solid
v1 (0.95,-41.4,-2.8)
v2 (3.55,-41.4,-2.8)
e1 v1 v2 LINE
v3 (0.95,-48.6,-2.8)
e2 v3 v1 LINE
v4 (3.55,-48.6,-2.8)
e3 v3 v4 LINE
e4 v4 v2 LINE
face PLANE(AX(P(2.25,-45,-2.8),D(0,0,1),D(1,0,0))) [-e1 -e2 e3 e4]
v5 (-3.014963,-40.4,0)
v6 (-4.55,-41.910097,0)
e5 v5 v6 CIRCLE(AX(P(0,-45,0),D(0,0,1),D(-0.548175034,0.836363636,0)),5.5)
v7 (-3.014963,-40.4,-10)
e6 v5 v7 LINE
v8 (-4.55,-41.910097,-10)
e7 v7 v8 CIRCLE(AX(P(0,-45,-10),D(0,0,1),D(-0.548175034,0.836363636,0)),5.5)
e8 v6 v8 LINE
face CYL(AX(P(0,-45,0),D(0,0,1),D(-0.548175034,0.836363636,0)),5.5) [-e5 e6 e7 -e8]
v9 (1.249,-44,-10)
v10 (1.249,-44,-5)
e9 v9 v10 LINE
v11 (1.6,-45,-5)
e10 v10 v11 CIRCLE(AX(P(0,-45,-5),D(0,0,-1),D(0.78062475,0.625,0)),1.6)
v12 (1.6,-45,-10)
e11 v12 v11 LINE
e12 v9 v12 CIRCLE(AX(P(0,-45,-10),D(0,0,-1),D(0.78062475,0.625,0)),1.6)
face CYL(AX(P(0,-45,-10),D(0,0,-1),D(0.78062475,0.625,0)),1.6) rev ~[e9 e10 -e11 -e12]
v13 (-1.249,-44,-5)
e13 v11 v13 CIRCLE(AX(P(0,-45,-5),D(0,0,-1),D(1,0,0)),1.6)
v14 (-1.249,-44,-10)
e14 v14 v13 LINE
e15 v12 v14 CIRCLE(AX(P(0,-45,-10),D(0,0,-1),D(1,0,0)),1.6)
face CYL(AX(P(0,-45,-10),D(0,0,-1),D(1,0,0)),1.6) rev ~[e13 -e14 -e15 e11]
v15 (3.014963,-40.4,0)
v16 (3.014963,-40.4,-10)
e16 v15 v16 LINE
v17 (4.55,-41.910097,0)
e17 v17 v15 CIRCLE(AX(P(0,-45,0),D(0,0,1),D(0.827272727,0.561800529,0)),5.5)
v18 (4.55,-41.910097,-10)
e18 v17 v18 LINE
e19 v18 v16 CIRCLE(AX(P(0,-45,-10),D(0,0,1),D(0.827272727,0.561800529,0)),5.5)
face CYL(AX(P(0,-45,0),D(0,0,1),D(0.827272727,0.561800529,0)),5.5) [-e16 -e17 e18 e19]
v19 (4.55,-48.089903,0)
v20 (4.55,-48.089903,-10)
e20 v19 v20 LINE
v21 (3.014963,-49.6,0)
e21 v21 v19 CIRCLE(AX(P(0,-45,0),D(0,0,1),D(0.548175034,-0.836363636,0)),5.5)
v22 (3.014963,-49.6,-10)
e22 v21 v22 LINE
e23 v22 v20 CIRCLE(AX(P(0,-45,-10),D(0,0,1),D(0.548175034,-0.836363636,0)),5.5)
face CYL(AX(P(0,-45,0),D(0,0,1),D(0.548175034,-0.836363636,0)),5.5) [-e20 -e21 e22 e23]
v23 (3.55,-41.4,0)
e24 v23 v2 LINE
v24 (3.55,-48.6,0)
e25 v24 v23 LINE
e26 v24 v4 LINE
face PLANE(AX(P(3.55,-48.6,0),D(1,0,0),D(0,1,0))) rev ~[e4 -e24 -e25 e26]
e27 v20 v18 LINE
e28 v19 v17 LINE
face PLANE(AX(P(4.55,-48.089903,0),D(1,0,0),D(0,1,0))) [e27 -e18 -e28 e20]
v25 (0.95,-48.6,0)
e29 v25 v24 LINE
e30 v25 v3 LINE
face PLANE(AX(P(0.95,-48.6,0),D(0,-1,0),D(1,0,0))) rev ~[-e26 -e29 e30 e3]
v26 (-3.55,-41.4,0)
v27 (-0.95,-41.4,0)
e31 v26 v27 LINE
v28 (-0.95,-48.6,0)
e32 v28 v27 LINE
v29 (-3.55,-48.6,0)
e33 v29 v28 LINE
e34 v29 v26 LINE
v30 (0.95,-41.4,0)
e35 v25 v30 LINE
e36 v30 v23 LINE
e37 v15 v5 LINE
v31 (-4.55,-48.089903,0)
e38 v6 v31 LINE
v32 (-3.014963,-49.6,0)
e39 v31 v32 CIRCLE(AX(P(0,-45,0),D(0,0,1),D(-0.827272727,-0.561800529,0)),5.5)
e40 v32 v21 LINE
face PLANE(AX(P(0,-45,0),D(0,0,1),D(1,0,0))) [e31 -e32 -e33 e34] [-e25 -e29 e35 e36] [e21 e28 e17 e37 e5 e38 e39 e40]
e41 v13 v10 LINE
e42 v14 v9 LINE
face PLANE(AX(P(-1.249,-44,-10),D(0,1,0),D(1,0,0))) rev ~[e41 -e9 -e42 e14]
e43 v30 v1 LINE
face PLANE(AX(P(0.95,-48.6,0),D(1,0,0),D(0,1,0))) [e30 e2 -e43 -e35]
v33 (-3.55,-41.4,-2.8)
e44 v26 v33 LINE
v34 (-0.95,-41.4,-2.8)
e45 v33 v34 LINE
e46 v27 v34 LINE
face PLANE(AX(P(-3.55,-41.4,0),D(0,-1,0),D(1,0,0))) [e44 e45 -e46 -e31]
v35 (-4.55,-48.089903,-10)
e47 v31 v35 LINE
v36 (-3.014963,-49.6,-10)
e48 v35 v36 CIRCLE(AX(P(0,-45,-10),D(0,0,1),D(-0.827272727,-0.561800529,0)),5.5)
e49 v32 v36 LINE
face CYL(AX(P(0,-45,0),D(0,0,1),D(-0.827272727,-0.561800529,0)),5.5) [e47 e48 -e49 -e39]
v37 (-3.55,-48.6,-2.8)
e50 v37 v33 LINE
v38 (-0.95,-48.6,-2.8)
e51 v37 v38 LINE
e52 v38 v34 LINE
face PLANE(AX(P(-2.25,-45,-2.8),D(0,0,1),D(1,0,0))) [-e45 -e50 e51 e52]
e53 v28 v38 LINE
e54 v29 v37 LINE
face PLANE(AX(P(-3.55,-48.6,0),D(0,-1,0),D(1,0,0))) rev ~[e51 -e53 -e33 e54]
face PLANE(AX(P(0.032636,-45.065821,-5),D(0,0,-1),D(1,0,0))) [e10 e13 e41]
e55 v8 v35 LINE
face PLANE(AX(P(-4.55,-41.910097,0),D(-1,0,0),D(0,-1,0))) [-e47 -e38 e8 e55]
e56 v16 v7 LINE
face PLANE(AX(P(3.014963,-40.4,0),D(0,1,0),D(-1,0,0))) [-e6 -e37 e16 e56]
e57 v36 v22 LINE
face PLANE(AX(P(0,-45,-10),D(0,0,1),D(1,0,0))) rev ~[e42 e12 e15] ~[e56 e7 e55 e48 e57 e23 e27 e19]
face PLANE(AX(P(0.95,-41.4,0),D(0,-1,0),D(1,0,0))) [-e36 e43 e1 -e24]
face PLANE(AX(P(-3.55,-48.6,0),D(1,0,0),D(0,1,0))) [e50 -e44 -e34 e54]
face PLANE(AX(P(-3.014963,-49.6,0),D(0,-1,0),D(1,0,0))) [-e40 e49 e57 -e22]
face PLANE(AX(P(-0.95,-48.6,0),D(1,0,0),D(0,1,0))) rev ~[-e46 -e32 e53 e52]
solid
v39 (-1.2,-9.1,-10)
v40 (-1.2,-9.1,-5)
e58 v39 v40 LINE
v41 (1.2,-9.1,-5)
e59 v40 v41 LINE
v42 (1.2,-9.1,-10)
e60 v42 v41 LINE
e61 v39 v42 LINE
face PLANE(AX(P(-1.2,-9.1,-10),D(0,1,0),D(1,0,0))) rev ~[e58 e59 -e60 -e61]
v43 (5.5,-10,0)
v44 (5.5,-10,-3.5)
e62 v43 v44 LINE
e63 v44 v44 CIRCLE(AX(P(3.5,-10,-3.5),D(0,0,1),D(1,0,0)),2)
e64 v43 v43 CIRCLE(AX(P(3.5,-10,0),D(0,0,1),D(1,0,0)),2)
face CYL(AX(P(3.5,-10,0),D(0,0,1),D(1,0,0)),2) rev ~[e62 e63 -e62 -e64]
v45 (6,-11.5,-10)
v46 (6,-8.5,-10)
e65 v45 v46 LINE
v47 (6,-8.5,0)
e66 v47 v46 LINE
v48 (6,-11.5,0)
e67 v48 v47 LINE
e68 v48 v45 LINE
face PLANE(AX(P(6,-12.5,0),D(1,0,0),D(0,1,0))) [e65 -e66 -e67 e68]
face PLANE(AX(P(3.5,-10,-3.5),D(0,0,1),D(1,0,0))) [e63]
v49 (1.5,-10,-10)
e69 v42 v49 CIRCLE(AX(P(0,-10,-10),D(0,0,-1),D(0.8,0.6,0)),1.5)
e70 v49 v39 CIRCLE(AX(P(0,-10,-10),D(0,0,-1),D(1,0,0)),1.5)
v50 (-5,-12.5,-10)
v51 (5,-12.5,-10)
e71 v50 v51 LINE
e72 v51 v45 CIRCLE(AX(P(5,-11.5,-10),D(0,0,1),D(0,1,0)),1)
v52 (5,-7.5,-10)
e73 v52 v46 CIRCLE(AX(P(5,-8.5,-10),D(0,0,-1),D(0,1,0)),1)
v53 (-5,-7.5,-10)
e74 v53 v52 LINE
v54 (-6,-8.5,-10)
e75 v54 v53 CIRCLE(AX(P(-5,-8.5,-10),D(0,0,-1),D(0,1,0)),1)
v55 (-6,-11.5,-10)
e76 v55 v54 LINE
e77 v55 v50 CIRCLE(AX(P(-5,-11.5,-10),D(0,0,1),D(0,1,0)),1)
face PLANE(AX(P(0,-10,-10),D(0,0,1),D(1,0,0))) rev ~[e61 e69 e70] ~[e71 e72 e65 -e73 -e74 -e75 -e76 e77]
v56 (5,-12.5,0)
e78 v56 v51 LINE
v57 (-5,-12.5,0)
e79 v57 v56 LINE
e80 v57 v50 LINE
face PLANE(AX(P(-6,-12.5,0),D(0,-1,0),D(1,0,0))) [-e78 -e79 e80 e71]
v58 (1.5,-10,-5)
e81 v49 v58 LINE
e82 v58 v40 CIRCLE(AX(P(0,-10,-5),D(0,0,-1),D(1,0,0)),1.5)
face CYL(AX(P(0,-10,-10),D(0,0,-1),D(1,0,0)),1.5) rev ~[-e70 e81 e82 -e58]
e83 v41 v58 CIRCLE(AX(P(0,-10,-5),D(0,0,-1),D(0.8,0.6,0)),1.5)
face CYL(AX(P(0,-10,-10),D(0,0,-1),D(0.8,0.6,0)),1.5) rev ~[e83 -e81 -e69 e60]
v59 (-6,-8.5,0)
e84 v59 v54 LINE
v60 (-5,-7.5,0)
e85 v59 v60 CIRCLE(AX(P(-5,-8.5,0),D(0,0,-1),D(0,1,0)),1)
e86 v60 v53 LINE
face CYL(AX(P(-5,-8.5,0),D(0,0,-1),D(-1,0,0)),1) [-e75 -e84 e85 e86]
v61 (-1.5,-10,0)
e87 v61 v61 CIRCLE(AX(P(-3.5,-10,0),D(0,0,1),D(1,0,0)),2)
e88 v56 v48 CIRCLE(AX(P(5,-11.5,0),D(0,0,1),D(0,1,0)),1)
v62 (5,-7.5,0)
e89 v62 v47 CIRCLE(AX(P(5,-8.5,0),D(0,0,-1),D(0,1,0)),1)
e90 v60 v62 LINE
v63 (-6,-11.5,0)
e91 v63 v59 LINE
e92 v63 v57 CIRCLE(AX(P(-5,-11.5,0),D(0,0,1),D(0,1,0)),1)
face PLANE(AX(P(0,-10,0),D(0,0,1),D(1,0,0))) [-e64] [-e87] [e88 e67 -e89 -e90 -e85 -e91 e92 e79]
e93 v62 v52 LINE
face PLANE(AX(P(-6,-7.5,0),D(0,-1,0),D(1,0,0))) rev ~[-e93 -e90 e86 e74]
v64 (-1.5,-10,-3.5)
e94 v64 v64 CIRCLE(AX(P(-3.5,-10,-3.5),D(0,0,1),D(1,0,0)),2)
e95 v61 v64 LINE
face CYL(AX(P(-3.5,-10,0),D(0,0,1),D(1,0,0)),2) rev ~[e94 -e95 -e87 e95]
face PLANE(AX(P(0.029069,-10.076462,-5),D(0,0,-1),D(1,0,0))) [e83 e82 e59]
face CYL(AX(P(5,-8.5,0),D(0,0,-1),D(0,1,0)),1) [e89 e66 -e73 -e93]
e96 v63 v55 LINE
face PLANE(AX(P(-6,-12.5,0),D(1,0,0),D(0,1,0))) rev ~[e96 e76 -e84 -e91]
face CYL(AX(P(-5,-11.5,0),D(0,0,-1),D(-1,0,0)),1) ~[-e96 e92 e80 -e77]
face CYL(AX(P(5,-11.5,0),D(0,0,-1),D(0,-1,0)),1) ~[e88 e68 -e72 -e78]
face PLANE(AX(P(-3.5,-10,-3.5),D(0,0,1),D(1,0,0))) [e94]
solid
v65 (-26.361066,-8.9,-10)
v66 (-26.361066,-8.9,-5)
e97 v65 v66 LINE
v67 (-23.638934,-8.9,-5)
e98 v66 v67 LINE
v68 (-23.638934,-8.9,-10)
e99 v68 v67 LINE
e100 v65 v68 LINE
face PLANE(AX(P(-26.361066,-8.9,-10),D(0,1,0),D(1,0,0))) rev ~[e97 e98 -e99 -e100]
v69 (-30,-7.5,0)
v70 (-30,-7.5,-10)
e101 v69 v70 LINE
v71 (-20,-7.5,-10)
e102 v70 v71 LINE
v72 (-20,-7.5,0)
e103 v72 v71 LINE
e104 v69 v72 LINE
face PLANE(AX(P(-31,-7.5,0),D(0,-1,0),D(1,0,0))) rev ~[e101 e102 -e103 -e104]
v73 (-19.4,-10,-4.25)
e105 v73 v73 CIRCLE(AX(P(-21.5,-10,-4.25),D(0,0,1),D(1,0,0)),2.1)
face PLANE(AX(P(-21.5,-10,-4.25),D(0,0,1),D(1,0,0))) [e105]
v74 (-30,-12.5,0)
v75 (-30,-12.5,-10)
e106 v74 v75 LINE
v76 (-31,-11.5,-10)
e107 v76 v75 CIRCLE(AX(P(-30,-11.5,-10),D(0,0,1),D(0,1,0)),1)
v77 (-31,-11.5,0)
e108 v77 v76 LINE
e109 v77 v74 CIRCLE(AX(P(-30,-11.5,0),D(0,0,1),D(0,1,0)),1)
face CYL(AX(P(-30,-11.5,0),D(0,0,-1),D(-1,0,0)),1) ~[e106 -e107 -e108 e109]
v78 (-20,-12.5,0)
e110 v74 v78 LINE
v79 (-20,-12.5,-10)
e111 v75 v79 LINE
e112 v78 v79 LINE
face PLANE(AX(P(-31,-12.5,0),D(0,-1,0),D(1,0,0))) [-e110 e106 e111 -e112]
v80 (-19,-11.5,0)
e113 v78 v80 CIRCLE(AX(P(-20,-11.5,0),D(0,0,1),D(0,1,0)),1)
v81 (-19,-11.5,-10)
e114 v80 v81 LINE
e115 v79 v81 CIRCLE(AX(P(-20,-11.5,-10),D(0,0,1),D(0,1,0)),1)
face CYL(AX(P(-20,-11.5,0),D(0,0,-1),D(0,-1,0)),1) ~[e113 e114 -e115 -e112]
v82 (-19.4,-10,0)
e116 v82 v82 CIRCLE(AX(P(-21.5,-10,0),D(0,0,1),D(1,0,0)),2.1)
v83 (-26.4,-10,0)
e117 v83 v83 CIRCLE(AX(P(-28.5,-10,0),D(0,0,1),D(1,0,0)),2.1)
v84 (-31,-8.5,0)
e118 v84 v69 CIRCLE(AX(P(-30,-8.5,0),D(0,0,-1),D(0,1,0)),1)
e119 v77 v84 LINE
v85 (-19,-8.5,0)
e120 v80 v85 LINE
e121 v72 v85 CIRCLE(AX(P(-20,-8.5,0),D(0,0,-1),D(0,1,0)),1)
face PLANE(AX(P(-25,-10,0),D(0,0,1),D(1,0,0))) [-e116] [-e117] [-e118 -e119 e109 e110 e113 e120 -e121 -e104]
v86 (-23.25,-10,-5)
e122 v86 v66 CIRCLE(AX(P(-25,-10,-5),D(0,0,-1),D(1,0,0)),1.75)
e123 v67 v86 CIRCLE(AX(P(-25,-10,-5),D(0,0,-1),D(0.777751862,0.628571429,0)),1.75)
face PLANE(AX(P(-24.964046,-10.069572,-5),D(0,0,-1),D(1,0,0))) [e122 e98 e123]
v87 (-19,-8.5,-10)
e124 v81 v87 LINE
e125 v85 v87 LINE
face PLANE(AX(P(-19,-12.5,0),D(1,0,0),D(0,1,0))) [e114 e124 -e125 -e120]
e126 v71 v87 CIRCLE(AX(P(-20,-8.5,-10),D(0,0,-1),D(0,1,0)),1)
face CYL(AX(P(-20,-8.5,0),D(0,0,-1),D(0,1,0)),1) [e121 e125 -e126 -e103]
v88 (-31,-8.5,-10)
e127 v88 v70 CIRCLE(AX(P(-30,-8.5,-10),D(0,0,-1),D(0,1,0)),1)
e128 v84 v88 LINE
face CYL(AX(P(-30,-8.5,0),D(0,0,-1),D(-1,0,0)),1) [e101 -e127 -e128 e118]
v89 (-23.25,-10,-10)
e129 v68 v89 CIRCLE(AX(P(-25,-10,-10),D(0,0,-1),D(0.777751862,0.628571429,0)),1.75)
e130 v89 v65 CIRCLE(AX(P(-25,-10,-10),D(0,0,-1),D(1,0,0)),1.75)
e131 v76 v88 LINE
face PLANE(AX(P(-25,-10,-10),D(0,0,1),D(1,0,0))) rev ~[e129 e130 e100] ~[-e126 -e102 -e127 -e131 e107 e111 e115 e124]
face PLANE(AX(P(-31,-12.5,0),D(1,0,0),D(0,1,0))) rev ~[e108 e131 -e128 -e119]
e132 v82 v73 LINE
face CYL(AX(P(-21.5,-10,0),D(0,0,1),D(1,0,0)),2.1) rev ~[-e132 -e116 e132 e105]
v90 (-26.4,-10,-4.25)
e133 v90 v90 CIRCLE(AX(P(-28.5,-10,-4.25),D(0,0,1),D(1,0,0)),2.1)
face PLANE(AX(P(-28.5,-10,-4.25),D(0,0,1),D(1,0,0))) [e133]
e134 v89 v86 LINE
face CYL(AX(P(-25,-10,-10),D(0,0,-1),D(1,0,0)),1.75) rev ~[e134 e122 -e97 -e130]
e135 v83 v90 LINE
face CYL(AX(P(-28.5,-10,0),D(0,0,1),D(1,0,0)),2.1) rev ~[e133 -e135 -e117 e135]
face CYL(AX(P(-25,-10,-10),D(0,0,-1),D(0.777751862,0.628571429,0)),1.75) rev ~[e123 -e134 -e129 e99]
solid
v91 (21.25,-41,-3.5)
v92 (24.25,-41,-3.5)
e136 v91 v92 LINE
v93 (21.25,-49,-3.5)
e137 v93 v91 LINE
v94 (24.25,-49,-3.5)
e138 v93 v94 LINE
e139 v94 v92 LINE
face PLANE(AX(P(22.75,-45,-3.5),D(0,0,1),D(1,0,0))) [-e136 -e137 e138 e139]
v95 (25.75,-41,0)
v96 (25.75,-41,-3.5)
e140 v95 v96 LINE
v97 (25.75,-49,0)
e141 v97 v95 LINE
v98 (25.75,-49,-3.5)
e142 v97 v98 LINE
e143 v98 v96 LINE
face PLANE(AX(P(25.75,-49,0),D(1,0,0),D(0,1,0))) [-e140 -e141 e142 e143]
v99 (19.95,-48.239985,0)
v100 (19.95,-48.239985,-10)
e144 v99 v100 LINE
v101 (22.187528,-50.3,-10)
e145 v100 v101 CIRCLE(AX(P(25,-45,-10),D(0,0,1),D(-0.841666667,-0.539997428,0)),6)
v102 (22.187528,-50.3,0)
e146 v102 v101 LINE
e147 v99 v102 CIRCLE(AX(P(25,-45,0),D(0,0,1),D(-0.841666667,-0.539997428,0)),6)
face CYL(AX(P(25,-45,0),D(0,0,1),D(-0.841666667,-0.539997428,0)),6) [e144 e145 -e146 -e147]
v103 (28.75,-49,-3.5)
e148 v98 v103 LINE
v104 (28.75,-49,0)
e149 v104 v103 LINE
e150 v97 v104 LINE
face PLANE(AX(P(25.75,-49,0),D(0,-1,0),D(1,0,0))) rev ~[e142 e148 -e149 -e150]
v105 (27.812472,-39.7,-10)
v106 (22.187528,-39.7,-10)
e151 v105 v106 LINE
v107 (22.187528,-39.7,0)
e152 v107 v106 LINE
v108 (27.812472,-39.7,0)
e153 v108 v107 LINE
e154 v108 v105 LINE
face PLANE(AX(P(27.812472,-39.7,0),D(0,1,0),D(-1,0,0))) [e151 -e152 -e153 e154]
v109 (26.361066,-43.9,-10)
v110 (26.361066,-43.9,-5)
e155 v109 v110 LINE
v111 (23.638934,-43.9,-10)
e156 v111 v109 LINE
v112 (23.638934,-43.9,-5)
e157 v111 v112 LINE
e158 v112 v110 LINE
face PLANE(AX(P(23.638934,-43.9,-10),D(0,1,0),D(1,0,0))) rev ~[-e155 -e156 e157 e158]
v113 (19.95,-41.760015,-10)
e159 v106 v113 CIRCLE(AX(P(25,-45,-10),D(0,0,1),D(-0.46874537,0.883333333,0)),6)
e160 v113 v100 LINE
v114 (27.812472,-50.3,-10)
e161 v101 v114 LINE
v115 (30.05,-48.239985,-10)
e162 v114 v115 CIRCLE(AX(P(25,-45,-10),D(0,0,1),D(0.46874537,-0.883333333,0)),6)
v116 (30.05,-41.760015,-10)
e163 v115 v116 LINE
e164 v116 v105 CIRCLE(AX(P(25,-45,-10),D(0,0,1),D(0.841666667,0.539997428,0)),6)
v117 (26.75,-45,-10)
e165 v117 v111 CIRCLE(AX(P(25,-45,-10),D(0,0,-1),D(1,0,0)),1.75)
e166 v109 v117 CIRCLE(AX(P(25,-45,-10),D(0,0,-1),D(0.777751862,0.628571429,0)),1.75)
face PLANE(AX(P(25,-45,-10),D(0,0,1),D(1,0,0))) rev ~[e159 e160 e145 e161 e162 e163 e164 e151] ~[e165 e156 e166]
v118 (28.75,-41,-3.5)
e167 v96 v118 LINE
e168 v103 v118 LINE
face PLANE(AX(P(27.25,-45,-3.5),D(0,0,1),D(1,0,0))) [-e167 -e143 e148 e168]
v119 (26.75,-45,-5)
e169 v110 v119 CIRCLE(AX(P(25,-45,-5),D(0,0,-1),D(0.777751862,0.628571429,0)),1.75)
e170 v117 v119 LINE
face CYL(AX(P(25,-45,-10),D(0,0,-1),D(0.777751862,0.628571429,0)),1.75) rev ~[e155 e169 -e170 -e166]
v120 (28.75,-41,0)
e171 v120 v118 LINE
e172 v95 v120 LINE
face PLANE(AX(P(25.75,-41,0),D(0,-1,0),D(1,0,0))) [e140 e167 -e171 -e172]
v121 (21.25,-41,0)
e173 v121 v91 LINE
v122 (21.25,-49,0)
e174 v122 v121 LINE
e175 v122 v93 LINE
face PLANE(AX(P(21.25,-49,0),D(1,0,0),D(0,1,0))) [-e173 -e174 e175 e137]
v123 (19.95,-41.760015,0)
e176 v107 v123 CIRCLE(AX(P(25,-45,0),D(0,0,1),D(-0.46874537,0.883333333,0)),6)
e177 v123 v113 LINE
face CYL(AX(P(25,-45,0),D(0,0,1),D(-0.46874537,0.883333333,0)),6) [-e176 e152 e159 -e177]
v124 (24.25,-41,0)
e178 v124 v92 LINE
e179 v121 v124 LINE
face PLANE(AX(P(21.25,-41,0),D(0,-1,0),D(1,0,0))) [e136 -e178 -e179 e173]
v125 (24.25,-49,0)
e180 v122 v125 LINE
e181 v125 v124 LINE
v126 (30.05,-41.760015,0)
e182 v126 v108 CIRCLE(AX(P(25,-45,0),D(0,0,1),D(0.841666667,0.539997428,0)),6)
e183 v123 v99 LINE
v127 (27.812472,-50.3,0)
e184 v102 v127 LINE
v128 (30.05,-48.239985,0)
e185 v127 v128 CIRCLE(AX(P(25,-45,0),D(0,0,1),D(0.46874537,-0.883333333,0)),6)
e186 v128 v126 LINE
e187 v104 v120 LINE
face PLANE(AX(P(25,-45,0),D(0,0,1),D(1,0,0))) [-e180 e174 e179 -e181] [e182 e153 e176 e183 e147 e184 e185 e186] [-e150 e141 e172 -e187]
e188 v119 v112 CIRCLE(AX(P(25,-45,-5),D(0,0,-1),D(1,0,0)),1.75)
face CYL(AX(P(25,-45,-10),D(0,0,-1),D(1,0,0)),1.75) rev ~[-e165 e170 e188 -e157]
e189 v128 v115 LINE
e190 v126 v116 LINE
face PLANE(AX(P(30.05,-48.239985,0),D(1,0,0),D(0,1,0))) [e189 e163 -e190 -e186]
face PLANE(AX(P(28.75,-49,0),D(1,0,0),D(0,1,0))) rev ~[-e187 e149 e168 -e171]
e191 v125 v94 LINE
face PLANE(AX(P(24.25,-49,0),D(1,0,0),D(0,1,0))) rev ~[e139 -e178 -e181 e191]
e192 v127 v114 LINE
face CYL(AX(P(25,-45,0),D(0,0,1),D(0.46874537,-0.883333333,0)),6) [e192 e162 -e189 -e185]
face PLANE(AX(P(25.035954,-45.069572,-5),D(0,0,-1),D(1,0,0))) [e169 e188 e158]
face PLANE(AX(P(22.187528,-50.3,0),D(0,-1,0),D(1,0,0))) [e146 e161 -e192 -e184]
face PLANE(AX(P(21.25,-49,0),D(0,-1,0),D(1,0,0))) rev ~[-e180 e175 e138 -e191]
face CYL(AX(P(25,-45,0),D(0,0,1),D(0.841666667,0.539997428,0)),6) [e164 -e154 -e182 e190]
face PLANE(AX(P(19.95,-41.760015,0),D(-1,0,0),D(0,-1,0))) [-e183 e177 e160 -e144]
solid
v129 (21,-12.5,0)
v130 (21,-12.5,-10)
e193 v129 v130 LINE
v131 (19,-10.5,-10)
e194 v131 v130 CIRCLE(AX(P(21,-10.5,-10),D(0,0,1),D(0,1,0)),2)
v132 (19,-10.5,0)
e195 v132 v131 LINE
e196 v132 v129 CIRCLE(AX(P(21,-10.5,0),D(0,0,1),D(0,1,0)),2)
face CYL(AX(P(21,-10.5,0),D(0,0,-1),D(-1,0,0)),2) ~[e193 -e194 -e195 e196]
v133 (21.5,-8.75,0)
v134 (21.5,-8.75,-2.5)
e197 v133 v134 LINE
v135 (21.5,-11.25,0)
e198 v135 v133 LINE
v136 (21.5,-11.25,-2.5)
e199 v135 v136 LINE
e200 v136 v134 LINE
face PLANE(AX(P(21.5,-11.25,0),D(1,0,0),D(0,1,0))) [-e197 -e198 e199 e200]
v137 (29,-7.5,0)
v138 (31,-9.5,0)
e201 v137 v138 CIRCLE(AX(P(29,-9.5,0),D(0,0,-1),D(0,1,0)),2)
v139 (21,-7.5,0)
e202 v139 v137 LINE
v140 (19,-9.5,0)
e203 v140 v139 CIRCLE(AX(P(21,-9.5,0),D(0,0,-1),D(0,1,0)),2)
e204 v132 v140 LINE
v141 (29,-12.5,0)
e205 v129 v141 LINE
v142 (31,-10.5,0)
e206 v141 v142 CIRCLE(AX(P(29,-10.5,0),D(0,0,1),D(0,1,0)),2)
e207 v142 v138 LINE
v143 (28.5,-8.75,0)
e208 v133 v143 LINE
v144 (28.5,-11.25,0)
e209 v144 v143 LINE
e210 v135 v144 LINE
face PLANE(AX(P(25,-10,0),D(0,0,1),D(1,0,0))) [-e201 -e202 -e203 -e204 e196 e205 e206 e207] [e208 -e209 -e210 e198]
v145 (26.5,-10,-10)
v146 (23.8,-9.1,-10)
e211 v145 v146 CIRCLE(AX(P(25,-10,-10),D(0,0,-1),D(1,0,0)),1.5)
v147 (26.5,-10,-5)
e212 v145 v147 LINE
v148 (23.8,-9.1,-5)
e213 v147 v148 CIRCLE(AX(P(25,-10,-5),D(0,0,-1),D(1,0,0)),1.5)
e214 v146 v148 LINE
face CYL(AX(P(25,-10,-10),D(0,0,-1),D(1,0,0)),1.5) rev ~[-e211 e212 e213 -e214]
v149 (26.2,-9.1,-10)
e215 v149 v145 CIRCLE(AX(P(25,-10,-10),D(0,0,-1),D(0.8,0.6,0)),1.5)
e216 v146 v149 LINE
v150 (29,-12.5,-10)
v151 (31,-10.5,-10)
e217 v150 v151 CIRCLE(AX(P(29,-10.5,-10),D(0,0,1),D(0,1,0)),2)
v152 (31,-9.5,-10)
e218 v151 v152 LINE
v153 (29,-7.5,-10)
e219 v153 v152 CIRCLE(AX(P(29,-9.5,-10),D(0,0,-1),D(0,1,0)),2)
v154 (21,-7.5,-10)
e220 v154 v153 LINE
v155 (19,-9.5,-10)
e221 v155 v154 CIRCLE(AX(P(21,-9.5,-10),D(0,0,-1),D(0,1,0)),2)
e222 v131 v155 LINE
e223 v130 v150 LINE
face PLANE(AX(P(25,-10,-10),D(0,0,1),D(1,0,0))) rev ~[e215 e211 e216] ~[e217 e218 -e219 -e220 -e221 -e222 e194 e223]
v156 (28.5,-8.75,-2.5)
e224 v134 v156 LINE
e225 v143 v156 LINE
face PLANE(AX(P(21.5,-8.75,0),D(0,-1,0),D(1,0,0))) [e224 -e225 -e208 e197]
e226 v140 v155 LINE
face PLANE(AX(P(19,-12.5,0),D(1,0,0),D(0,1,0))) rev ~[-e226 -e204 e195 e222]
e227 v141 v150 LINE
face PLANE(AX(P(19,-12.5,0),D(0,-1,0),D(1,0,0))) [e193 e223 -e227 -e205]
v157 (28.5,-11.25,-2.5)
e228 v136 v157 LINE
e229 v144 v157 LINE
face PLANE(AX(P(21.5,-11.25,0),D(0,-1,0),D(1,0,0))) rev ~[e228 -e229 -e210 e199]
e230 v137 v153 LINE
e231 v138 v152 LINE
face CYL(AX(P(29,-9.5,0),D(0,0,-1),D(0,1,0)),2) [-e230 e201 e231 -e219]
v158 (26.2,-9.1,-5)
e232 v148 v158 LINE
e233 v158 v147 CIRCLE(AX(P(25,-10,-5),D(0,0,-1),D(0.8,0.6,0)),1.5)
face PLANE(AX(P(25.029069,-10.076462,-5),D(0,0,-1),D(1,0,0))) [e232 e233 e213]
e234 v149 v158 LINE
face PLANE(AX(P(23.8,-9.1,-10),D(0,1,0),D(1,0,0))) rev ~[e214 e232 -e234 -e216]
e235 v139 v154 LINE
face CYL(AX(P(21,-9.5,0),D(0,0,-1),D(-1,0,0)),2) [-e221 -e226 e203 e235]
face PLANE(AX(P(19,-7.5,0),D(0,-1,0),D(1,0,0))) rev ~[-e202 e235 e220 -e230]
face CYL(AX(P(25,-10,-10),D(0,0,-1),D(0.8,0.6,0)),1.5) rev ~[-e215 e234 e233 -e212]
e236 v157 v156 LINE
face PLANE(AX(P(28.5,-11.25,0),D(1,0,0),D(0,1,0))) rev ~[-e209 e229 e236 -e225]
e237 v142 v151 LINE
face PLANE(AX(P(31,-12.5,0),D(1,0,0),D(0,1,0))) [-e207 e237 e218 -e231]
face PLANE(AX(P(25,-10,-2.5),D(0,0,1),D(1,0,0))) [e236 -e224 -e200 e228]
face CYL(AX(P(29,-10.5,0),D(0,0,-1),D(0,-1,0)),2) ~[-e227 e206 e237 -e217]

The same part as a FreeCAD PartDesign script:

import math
import FreeCAD as App
import Part
import Sketcher
from FreeCAD import Vector
Q = App.Units.Quantity


def edges_at(feature, points):
    """Names of the edges that pass closest to the given points."""
    edges = feature.Shape.Edges
    near = lambda p: min(range(len(edges)), key=lambda i: edges[i].distToShape(Part.Vertex(*p))[0])
    return sorted({f"Edge{near(p) + 1}" for p in points})

doc = App.newDocument("Part")
body = doc.addObject("PartDesign::Body", "Body")

sketch1 = body.newObject("Sketcher::SketchObject", "Sketch")
sketch1.AttachmentSupport = (doc.getObject("XY_Plane"), [""])
sketch1.MapMode = "FlatFace"
sketch1.addGeometry([
    Part.LineSegment(Vector(-6, -8, 0), Vector(-6, -12, 0)),
    Part.LineSegment(Vector(-6, -12, 0), Vector(6, -12, 0)),
    Part.LineSegment(Vector(6, -12, 0), Vector(6, -8, 0)),
    Part.LineSegment(Vector(6, -8, 0), Vector(-6, -8, 0)),
], False)
sketch1.addConstraint([
    Sketcher.Constraint("Coincident", 0, 2, 1, 1),
    Sketcher.Constraint("Coincident", 1, 2, 2, 1),
    Sketcher.Constraint("Coincident", 2, 2, 3, 1),
    Sketcher.Constraint("Coincident", 3, 2, 0, 1),
    Sketcher.Constraint("Vertical", 0),
    Sketcher.Constraint("Horizontal", 1),
    Sketcher.Constraint("Vertical", 2),
    Sketcher.Constraint("Horizontal", 3),
    Sketcher.Constraint("DistanceX", 1, 1, 1, 2, Q("12 mm")),
    Sketcher.Constraint("DistanceY", 0, 2, 0, 1, Q("5 mm")),
    Sketcher.Constraint("DistanceX", 0, 2, -1, 1, Q("6 mm")),
    Sketcher.Constraint("DistanceY", 0, 2, -1, 1, Q("12.5 mm")),
])
pad1 = body.newObject("PartDesign::Pad", "Pad")
pad1.Profile = sketch1
pad1.Length = 10
pad1.Reversed = True

sketch2 = body.newObject("Sketcher::SketchObject", "Sketch001")
sketch2.AttachmentSupport = (doc.getObject("XY_Plane"), [""])
sketch2.MapMode = "FlatFace"
sketch2.addGeometry([
    Part.Circle(Vector(-3.5, -10, 0), Vector(0, 0, 1), 2),
    Part.Circle(Vector(3.5, -10, 0), Vector(0, 0, 1), 2),
], False)
sketch2.addConstraint([
    Sketcher.Constraint("Equal", 0, 1),
    Sketcher.Constraint("Symmetric", 0, 3, 1, 3, -2),
    Sketcher.Constraint("Diameter", 0, Q("4 mm")),
    Sketcher.Constraint("DistanceY", 0, 3, -1, 1, Q("10 mm")),
    Sketcher.Constraint("DistanceX", 0, 3, 1, 3, Q("7 mm")),
])
pocket1 = body.newObject("PartDesign::Pocket", "Pocket")
pocket1.Profile = sketch2
pocket1.Length = 3.5
doc.recompute()

fillet = body.newObject("PartDesign::Fillet", "Fillet")
fillet.Base = (pocket1, edges_at(pocket1, [
    (6, -12.5, -5),
    (6, -7.5, -5),
    (-6, -12.5, -5),
    (-6, -7.5, -5),
]))
fillet.Radius = 1

sketch3 = body.newObject("Sketcher::SketchObject", "Sketch002")
sketch3.AttachmentSupport = (doc.getObject("XY_Plane"), [""])
sketch3.MapMode = "FlatFace"
sketch3.AttachmentOffset = App.Placement(Vector(0, 0, -10), App.Rotation())
sketch3.addGeometry([
    Part.ArcOfCircle(Part.Circle(Vector(0, -10, 0), Vector(0, 0, 1), 1.5), math.radians(0), math.radians(37)),
    Part.ArcOfCircle(Part.Circle(Vector(0, -10, 0), Vector(0, 0, 1), 1.5), math.radians(143), math.radians(360)),
    Part.LineSegment(Vector(-1.2, -9.1, 0), Vector(1.2, -9.1, 0)),
], False)
sketch3.addConstraint([
    Sketcher.Constraint("Tangent", 0, 1, 1, 2),
    Sketcher.Constraint("Coincident", 1, 1, 2, 1),
    Sketcher.Constraint("Coincident", 2, 2, 0, 2),
    Sketcher.Constraint("Horizontal", 2),
    Sketcher.Constraint("Equal", 0, 1),
    Sketcher.Constraint("PointOnObject", 0, 3, -2),
    Sketcher.Constraint("Horizontal", 1, 3, 0, 1),
    Sketcher.Constraint("Radius", 0, Q("1.5 mm")),
    Sketcher.Constraint("DistanceX", 2, 1, 2, 2, Q("2.4 mm")),
    Sketcher.Constraint("DistanceY", 0, 3, -1, 1, Q("10 mm")),
])
pocket2 = body.newObject("PartDesign::Pocket", "Pocket001")
pocket2.Profile = sketch3
pocket2.Length = 5
pocket2.Reversed = True
body2 = doc.addObject("PartDesign::Body", "Body001")

sketch4 = body2.newObject("Sketcher::SketchObject", "Sketch003")
sketch4.AttachmentSupport = (doc.getObject("XY_Plane001"), [""])
sketch4.MapMode = "FlatFace"
sketch4.addGeometry([
    Part.LineSegment(Vector(19, -8, 0), Vector(19, -12, 0)),
    Part.LineSegment(Vector(19, -12, 0), Vector(31, -12, 0)),
    Part.LineSegment(Vector(31, -12, 0), Vector(31, -8, 0)),
    Part.LineSegment(Vector(31, -8, 0), Vector(19, -8, 0)),
], False)
sketch4.addConstraint([
    Sketcher.Constraint("Coincident", 0, 2, 1, 1),
    Sketcher.Constraint("Coincident", 1, 2, 2, 1),
    Sketcher.Constraint("Coincident", 2, 2, 3, 1),
    Sketcher.Constraint("Coincident", 3, 2, 0, 1),
    Sketcher.Constraint("Vertical", 0),
    Sketcher.Constraint("Horizontal", 1),
    Sketcher.Constraint("Vertical", 2),
    Sketcher.Constraint("Horizontal", 3),
    Sketcher.Constraint("DistanceX", 1, 1, 1, 2, Q("12 mm")),
    Sketcher.Constraint("DistanceY", 0, 2, 0, 1, Q("5 mm")),
    Sketcher.Constraint("DistanceX", -1, 1, 0, 2, Q("19 mm")),
    Sketcher.Constraint("DistanceY", 0, 2, -1, 1, Q("12.5 mm")),
])
pad2 = body2.newObject("PartDesign::Pad", "Pad001")
pad2.Profile = sketch4
pad2.Length = 10
pad2.Reversed = True

sketch5 = body2.newObject("Sketcher::SketchObject", "Sketch004")
sketch5.AttachmentSupport = (doc.getObject("XY_Plane001"), [""])
sketch5.MapMode = "FlatFace"
sketch5.addGeometry([
    Part.LineSegment(Vector(21.5, -8.8, 0), Vector(21.5, -11.2, 0)),
    Part.LineSegment(Vector(21.5, -11.2, 0), Vector(28.5, -11.2, 0)),
    Part.LineSegment(Vector(28.5, -11.2, 0), Vector(28.5, -8.8, 0)),
    Part.LineSegment(Vector(28.5, -8.8, 0), Vector(21.5, -8.8, 0)),
], False)
sketch5.addConstraint([
    Sketcher.Constraint("Coincident", 0, 2, 1, 1),
    Sketcher.Constraint("Coincident", 1, 2, 2, 1),
    Sketcher.Constraint("Coincident", 2, 2, 3, 1),
    Sketcher.Constraint("Coincident", 3, 2, 0, 1),
    Sketcher.Constraint("Vertical", 0),
    Sketcher.Constraint("Horizontal", 1),
    Sketcher.Constraint("Vertical", 2),
    Sketcher.Constraint("Horizontal", 3),
    Sketcher.Constraint("DistanceX", 1, 1, 1, 2, Q("7 mm")),
    Sketcher.Constraint("DistanceY", 0, 2, 0, 1, Q("2.5 mm")),
    Sketcher.Constraint("DistanceX", -1, 1, 0, 2, Q("21.5 mm")),
    Sketcher.Constraint("DistanceY", 0, 2, -1, 1, Q("11.25 mm")),
])
pocket3 = body2.newObject("PartDesign::Pocket", "Pocket002")
pocket3.Profile = sketch5
pocket3.Length = 2.5

sketch6 = body2.newObject("Sketcher::SketchObject", "Sketch005")
sketch6.AttachmentSupport = (doc.getObject("XY_Plane001"), [""])
sketch6.MapMode = "FlatFace"
sketch6.AttachmentOffset = App.Placement(Vector(0, 0, -10), App.Rotation())
sketch6.addGeometry([
    Part.ArcOfCircle(Part.Circle(Vector(25, -10, 0), Vector(0, 0, 1), 1.5), math.radians(0), math.radians(37)),
    Part.ArcOfCircle(Part.Circle(Vector(25, -10, 0), Vector(0, 0, 1), 1.5), math.radians(143), math.radians(360)),
    Part.LineSegment(Vector(23.8, -9.1, 0), Vector(26.2, -9.1, 0)),
], False)
sketch6.addConstraint([
    Sketcher.Constraint("Tangent", 0, 1, 1, 2),
    Sketcher.Constraint("Coincident", 1, 1, 2, 1),
    Sketcher.Constraint("Coincident", 2, 2, 0, 2),
    Sketcher.Constraint("Horizontal", 2),
    Sketcher.Constraint("Equal", 0, 1),
    Sketcher.Constraint("Horizontal", 1, 3, 0, 1),
    Sketcher.Constraint("Radius", 0, Q("1.5 mm")),
    Sketcher.Constraint("DistanceX", 2, 1, 2, 2, Q("2.4 mm")),
    Sketcher.Constraint("DistanceX", -1, 1, 0, 3, Q("25 mm")),
    Sketcher.Constraint("DistanceY", 0, 3, -1, 1, Q("10 mm")),
])
pocket4 = body2.newObject("PartDesign::Pocket", "Pocket003")
pocket4.Profile = sketch6
pocket4.Length = 5
pocket4.Reversed = True
doc.recompute()

fillet2 = body2.newObject("PartDesign::Fillet", "Fillet001")
fillet2.Base = (pocket4, edges_at(pocket4, [
    (19, -12.5, -5),
    (31, -12.5, -5),
    (31, -7.5, -5),
    (19, -7.5, -5),
]))
fillet2.Radius = 2
body3 = doc.addObject("PartDesign::Body", "Body002")

sketch7 = body3.newObject("Sketcher::SketchObject", "Sketch006")
sketch7.AttachmentSupport = (doc.getObject("XY_Plane002"), [""])
sketch7.MapMode = "FlatFace"
sketch7.addGeometry([
    Part.LineSegment(Vector(4.5, -48.1, 0), Vector(4.5, -41.9, 0)),
    Part.ArcOfCircle(Part.Circle(Vector(0, -45, 0), Vector(0, 0, 1), 5.5), math.radians(34), math.radians(57)),
    Part.LineSegment(Vector(3, -40.4, 0), Vector(-3, -40.4, 0)),
    Part.ArcOfCircle(Part.Circle(Vector(0, -45, 0), Vector(0, 0, 1), 5.5), math.radians(123), math.radians(146)),
    Part.LineSegment(Vector(-4.5, -41.9, 0), Vector(-4.5, -48.1, 0)),
    Part.ArcOfCircle(Part.Circle(Vector(0, -45, 0), Vector(0, 0, 1), 5.5), math.radians(-146), math.radians(-123)),
    Part.LineSegment(Vector(-3, -49.6, 0), Vector(3, -49.6, 0)),
    Part.ArcOfCircle(Part.Circle(Vector(0, -45, 0), Vector(0, 0, 1), 5.5), math.radians(-57), math.radians(-34)),
], False)
sketch7.addConstraint([
    Sketcher.Constraint("Coincident", 0, 2, 1, 1),
    Sketcher.Constraint("Coincident", 1, 2, 2, 1),
    Sketcher.Constraint("Coincident", 2, 2, 3, 1),
    Sketcher.Constraint("Coincident", 3, 2, 4, 1),
    Sketcher.Constraint("Coincident", 4, 2, 5, 1),
    Sketcher.Constraint("Coincident", 5, 2, 6, 1),
    Sketcher.Constraint("Coincident", 6, 2, 7, 1),
    Sketcher.Constraint("Coincident", 7, 2, 0, 1),
    Sketcher.Constraint("Vertical", 0),
    Sketcher.Constraint("Horizontal", 2),
    Sketcher.Constraint("Vertical", 4),
    Sketcher.Constraint("Horizontal", 6),
    Sketcher.Constraint("Coincident", 3, 3, 1, 3),
    Sketcher.Constraint("Coincident", 5, 3, 1, 3),
    Sketcher.Constraint("Coincident", 7, 3, 1, 3),
    Sketcher.Constraint("Equal", 1, 3),
    Sketcher.Constraint("Equal", 3, 5),
    Sketcher.Constraint("Equal", 5, 7),
    Sketcher.Constraint("Symmetric", 0, 2, 3, 2, -2),
    Sketcher.Constraint("Vertical", 2, 2, 5, 2),
    Sketcher.Constraint("Radius", 1, Q("5.5 mm")),
    Sketcher.Constraint("DistanceY", 1, 3, -1, 1, Q("45 mm")),
    Sketcher.Constraint("DistanceY", 1, 2, -1, 1, Q("40.4 mm")),
    Sketcher.Constraint("DistanceX", -1, 1, 0, 2, Q("4.55 mm")),
])
pad3 = body3.newObject("PartDesign::Pad", "Pad002")
pad3.Profile = sketch7
pad3.Length = 10
pad3.Reversed = True

sketch8 = body3.newObject("Sketcher::SketchObject", "Sketch007")
sketch8.AttachmentSupport = (doc.getObject("XY_Plane002"), [""])
sketch8.MapMode = "FlatFace"
sketch8.addGeometry([
    Part.LineSegment(Vector(-3.5, -41.4, 0), Vector(-3.5, -48.6, 0)),
    Part.LineSegment(Vector(-3.5, -48.6, 0), Vector(-0.9, -48.6, 0)),
    Part.LineSegment(Vector(-0.9, -48.6, 0), Vector(-0.9, -41.4, 0)),
    Part.LineSegment(Vector(-0.9, -41.4, 0), Vector(-3.5, -41.4, 0)),
    Part.LineSegment(Vector(0.9, -41.4, 0), Vector(0.9, -48.6, 0)),
    Part.LineSegment(Vector(0.9, -48.6, 0), Vector(3.5, -48.6, 0)),
    Part.LineSegment(Vector(3.5, -48.6, 0), Vector(3.5, -41.4, 0)),
    Part.LineSegment(Vector(3.5, -41.4, 0), Vector(0.9, -41.4, 0)),
], False)
sketch8.addConstraint([
    Sketcher.Constraint("Coincident", 0, 2, 1, 1),
    Sketcher.Constraint("Coincident", 1, 2, 2, 1),
    Sketcher.Constraint("Coincident", 2, 2, 3, 1),
    Sketcher.Constraint("Coincident", 3, 2, 0, 1),
    Sketcher.Constraint("Coincident", 4, 2, 5, 1),
    Sketcher.Constraint("Coincident", 5, 2, 6, 1),
    Sketcher.Constraint("Coincident", 6, 2, 7, 1),
    Sketcher.Constraint("Coincident", 7, 2, 4, 1),
    Sketcher.Constraint("Vertical", 0),
    Sketcher.Constraint("Horizontal", 1),
    Sketcher.Constraint("Vertical", 2),
    Sketcher.Constraint("Horizontal", 3),
    Sketcher.Constraint("Vertical", 4),
    Sketcher.Constraint("Horizontal", 5),
    Sketcher.Constraint("Vertical", 6),
    Sketcher.Constraint("Horizontal", 7),
    Sketcher.Constraint("Symmetric", 1, 2, 4, 2, -2),
    Sketcher.Constraint("Symmetric", 3, 2, 6, 2, -2),
    Sketcher.Constraint("DistanceX", 1, 1, 1, 2, Q("2.6 mm")),
    Sketcher.Constraint("DistanceY", 0, 2, 0, 1, Q("7.2 mm")),
    Sketcher.Constraint("DistanceY", 0, 2, -1, 1, Q("48.6 mm")),
    Sketcher.Constraint("DistanceX", 1, 2, 4, 2, Q("1.9 mm")),
])
pocket5 = body3.newObject("PartDesign::Pocket", "Pocket004")
pocket5.Profile = sketch8
pocket5.Length = 2.8

sketch9 = body3.newObject("Sketcher::SketchObject", "Sketch008")
sketch9.AttachmentSupport = (doc.getObject("XY_Plane002"), [""])
sketch9.MapMode = "FlatFace"
sketch9.AttachmentOffset = App.Placement(Vector(0, 0, -10), App.Rotation())
sketch9.addGeometry([
    Part.ArcOfCircle(Part.Circle(Vector(0, -45, 0), Vector(0, 0, 1), 1.6), math.radians(0), math.radians(39)),
    Part.ArcOfCircle(Part.Circle(Vector(0, -45, 0), Vector(0, 0, 1), 1.6), math.radians(141), math.radians(360)),
    Part.LineSegment(Vector(-1.2, -44, 0), Vector(1.2, -44, 0)),
], False)
sketch9.addConstraint([
    Sketcher.Constraint("Tangent", 0, 1, 1, 2),
    Sketcher.Constraint("Coincident", 1, 1, 2, 1),
    Sketcher.Constraint("Coincident", 2, 2, 0, 2),
    Sketcher.Constraint("Horizontal", 2),
    Sketcher.Constraint("Equal", 0, 1),
    Sketcher.Constraint("PointOnObject", 0, 3, -2),
    Sketcher.Constraint("Horizontal", 1, 3, 0, 1),
    Sketcher.Constraint("Radius", 0, Q("1.6 mm")),
    Sketcher.Constraint("DistanceY", 0, 3, -1, 1, Q("45 mm")),
    Sketcher.Constraint("DistanceY", 1, 1, -1, 1, Q("44 mm")),
])
pocket6 = body3.newObject("PartDesign::Pocket", "Pocket005")
pocket6.Profile = sketch9
pocket6.Length = 5
pocket6.Reversed = True
body4 = doc.addObject("PartDesign::Body", "Body003")

sketch10 = body4.newObject("Sketcher::SketchObject", "Sketch009")
sketch10.AttachmentSupport = (doc.getObject("XY_Plane003"), [""])
sketch10.MapMode = "FlatFace"
sketch10.addGeometry([
    Part.LineSegment(Vector(30.1, -48.2, 0), Vector(30.1, -41.8, 0)),
    Part.ArcOfCircle(Part.Circle(Vector(25, -45, 0), Vector(0, 0, 1), 6), math.radians(33), math.radians(62)),
    Part.LineSegment(Vector(27.8, -39.7, 0), Vector(22.2, -39.7, 0)),
    Part.ArcOfCircle(Part.Circle(Vector(25, -45, 0), Vector(0, 0, 1), 6), math.radians(118), math.radians(147)),
    Part.LineSegment(Vector(19.9, -41.8, 0), Vector(19.9, -48.2, 0)),
    Part.ArcOfCircle(Part.Circle(Vector(25, -45, 0), Vector(0, 0, 1), 6), math.radians(-147), math.radians(-118)),
    Part.LineSegment(Vector(22.2, -50.3, 0), Vector(27.8, -50.3, 0)),
    Part.ArcOfCircle(Part.Circle(Vector(25, -45, 0), Vector(0, 0, 1), 6), math.radians(-62), math.radians(-33)),
], False)
sketch10.addConstraint([
    Sketcher.Constraint("Coincident", 0, 2, 1, 1),
    Sketcher.Constraint("Coincident", 1, 2, 2, 1),
    Sketcher.Constraint("Coincident", 2, 2, 3, 1),
    Sketcher.Constraint("Coincident", 3, 2, 4, 1),
    Sketcher.Constraint("Coincident", 4, 2, 5, 1),
    Sketcher.Constraint("Coincident", 5, 2, 6, 1),
    Sketcher.Constraint("Coincident", 6, 2, 7, 1),
    Sketcher.Constraint("Coincident", 7, 2, 0, 1),
    Sketcher.Constraint("Vertical", 0),
    Sketcher.Constraint("Horizontal", 2),
    Sketcher.Constraint("Vertical", 4),
    Sketcher.Constraint("Horizontal", 6),
    Sketcher.Constraint("Coincident", 3, 3, 1, 3),
    Sketcher.Constraint("Coincident", 5, 3, 1, 3),
    Sketcher.Constraint("Coincident", 7, 3, 1, 3),
    Sketcher.Constraint("Equal", 1, 3),
    Sketcher.Constraint("Equal", 3, 5),
    Sketcher.Constraint("Equal", 5, 7),
    Sketcher.Constraint("Horizontal", 0, 2, 3, 2),
    Sketcher.Constraint("Vertical", 2, 2, 5, 2),
    Sketcher.Constraint("Radius", 1, Q("6 mm")),
    Sketcher.Constraint("DistanceX", -1, 1, 1, 3, Q("25 mm")),
    Sketcher.Constraint("DistanceY", 1, 3, -1, 1, Q("45 mm")),
    Sketcher.Constraint("DistanceY", 1, 2, -1, 1, Q("39.7 mm")),
    Sketcher.Constraint("DistanceX", -1, 1, 0, 2, Q("30.05 mm")),
])
pad4 = body4.newObject("PartDesign::Pad", "Pad003")
pad4.Profile = sketch10
pad4.Length = 10
pad4.Reversed = True

sketch11 = body4.newObject("Sketcher::SketchObject", "Sketch010")
sketch11.AttachmentSupport = (doc.getObject("XY_Plane003"), [""])
sketch11.MapMode = "FlatFace"
sketch11.addGeometry([
    Part.LineSegment(Vector(21.2, -41, 0), Vector(21.2, -49, 0)),
    Part.LineSegment(Vector(21.2, -49, 0), Vector(24.2, -49, 0)),
    Part.LineSegment(Vector(24.2, -49, 0), Vector(24.2, -41, 0)),
    Part.LineSegment(Vector(24.2, -41, 0), Vector(21.2, -41, 0)),
    Part.LineSegment(Vector(25.8, -41, 0), Vector(25.8, -49, 0)),
    Part.LineSegment(Vector(25.8, -49, 0), Vector(28.8, -49, 0)),
    Part.LineSegment(Vector(28.8, -49, 0), Vector(28.8, -41, 0)),
    Part.LineSegment(Vector(28.8, -41, 0), Vector(25.8, -41, 0)),
], False)
sketch11.addConstraint([
    Sketcher.Constraint("Coincident", 0, 2, 1, 1),
    Sketcher.Constraint("Coincident", 1, 2, 2, 1),
    Sketcher.Constraint("Coincident", 2, 2, 3, 1),
    Sketcher.Constraint("Coincident", 3, 2, 0, 1),
    Sketcher.Constraint("Coincident", 4, 2, 5, 1),
    Sketcher.Constraint("Coincident", 5, 2, 6, 1),
    Sketcher.Constraint("Coincident", 6, 2, 7, 1),
    Sketcher.Constraint("Coincident", 7, 2, 4, 1),
    Sketcher.Constraint("Vertical", 0),
    Sketcher.Constraint("Horizontal", 1),
    Sketcher.Constraint("Vertical", 2),
    Sketcher.Constraint("Horizontal", 3),
    Sketcher.Constraint("Vertical", 4),
    Sketcher.Constraint("Horizontal", 5),
    Sketcher.Constraint("Vertical", 6),
    Sketcher.Constraint("Horizontal", 7),
    Sketcher.Constraint("Horizontal", 1, 2, 4, 2),
    Sketcher.Constraint("Horizontal", 3, 2, 6, 2),
    Sketcher.Constraint("Equal", 3, 5),
    Sketcher.Constraint("DistanceX", 1, 1, 1, 2, Q("3 mm")),
    Sketcher.Constraint("DistanceY", 0, 2, 0, 1, Q("8 mm")),
    Sketcher.Constraint("DistanceY", 0, 2, -1, 1, Q("49 mm")),
    Sketcher.Constraint("DistanceX", 1, 2, 4, 2, Q("1.5 mm")),
    Sketcher.Constraint("DistanceX", -1, 1, 0, 2, Q("21.25 mm")),
])
pocket7 = body4.newObject("PartDesign::Pocket", "Pocket006")
pocket7.Profile = sketch11
pocket7.Length = 3.5

sketch12 = body4.newObject("Sketcher::SketchObject", "Sketch011")
sketch12.AttachmentSupport = (doc.getObject("XY_Plane003"), [""])
sketch12.MapMode = "FlatFace"
sketch12.AttachmentOffset = App.Placement(Vector(0, 0, -10), App.Rotation())
sketch12.addGeometry([
    Part.ArcOfCircle(Part.Circle(Vector(25, -45, 0), Vector(0, 0, 1), 1.8), math.radians(0), math.radians(39)),
    Part.ArcOfCircle(Part.Circle(Vector(25, -45, 0), Vector(0, 0, 1), 1.8), math.radians(141), math.radians(360)),
    Part.LineSegment(Vector(23.6, -43.9, 0), Vector(26.4, -43.9, 0)),
], False)
sketch12.addConstraint([
    Sketcher.Constraint("Tangent", 0, 1, 1, 2),
    Sketcher.Constraint("Coincident", 1, 1, 2, 1),
    Sketcher.Constraint("Coincident", 2, 2, 0, 2),
    Sketcher.Constraint("Horizontal", 2),
    Sketcher.Constraint("Equal", 0, 1),
    Sketcher.Constraint("Horizontal", 1, 3, 0, 1),
    Sketcher.Constraint("Radius", 0, Q("1.75 mm")),
    Sketcher.Constraint("DistanceX", -1, 1, 0, 3, Q("25 mm")),
    Sketcher.Constraint("DistanceY", 0, 3, -1, 1, Q("45 mm")),
    Sketcher.Constraint("DistanceY", 1, 1, -1, 1, Q("43.9 mm")),
])
pocket8 = body4.newObject("PartDesign::Pocket", "Pocket007")
pocket8.Profile = sketch12
pocket8.Length = 5
pocket8.Reversed = True
body5 = doc.addObject("PartDesign::Body", "Body004")

sketch13 = body5.newObject("Sketcher::SketchObject", "Sketch012")
sketch13.AttachmentSupport = (doc.getObject("XY_Plane004"), [""])
sketch13.MapMode = "FlatFace"
sketch13.addGeometry([
    Part.LineSegment(Vector(-31, -8, 0), Vector(-31, -12, 0)),
    Part.LineSegment(Vector(-31, -12, 0), Vector(-19, -12, 0)),
    Part.LineSegment(Vector(-19, -12, 0), Vector(-19, -8, 0)),
    Part.LineSegment(Vector(-19, -8, 0), Vector(-31, -8, 0)),
], False)
sketch13.addConstraint([
    Sketcher.Constraint("Coincident", 0, 2, 1, 1),
    Sketcher.Constraint("Coincident", 1, 2, 2, 1),
    Sketcher.Constraint("Coincident", 2, 2, 3, 1),
    Sketcher.Constraint("Coincident", 3, 2, 0, 1),
    Sketcher.Constraint("Vertical", 0),
    Sketcher.Constraint("Horizontal", 1),
    Sketcher.Constraint("Vertical", 2),
    Sketcher.Constraint("Horizontal", 3),
    Sketcher.Constraint("DistanceX", 1, 1, 1, 2, Q("12 mm")),
    Sketcher.Constraint("DistanceY", 0, 2, 0, 1, Q("5 mm")),
    Sketcher.Constraint("DistanceX", 0, 2, -1, 1, Q("31 mm")),
    Sketcher.Constraint("DistanceY", 0, 2, -1, 1, Q("12.5 mm")),
])
pad5 = body5.newObject("PartDesign::Pad", "Pad004")
pad5.Profile = sketch13
pad5.Length = 10
pad5.Reversed = True

sketch14 = body5.newObject("Sketcher::SketchObject", "Sketch013")
sketch14.AttachmentSupport = (doc.getObject("XY_Plane004"), [""])
sketch14.MapMode = "FlatFace"
sketch14.addGeometry([
    Part.Circle(Vector(-21.5, -10, 0), Vector(0, 0, 1), 2.1),
    Part.Circle(Vector(-28.5, -10, 0), Vector(0, 0, 1), 2.1),
], False)
sketch14.addConstraint([
    Sketcher.Constraint("Equal", 0, 1),
    Sketcher.Constraint("Horizontal", 0, 3, 1, 3),
    Sketcher.Constraint("Diameter", 0, Q("4.2 mm")),
    Sketcher.Constraint("DistanceY", 0, 3, -1, 1, Q("10 mm")),
    Sketcher.Constraint("DistanceX", 1, 3, 0, 3, Q("7 mm")),
    Sketcher.Constraint("DistanceX", 0, 3, -1, 1, Q("21.5 mm")),
])
pocket9 = body5.newObject("PartDesign::Pocket", "Pocket008")
pocket9.Profile = sketch14
pocket9.Length = 4.25

sketch15 = body5.newObject("Sketcher::SketchObject", "Sketch014")
sketch15.AttachmentSupport = (doc.getObject("XY_Plane004"), [""])
sketch15.MapMode = "FlatFace"
sketch15.AttachmentOffset = App.Placement(Vector(0, 0, -10), App.Rotation())
sketch15.addGeometry([
    Part.ArcOfCircle(Part.Circle(Vector(-25, -10, 0), Vector(0, 0, 1), 1.8), math.radians(0), math.radians(39)),
    Part.ArcOfCircle(Part.Circle(Vector(-25, -10, 0), Vector(0, 0, 1), 1.8), math.radians(141), math.radians(360)),
    Part.LineSegment(Vector(-26.4, -8.9, 0), Vector(-23.6, -8.9, 0)),
], False)
sketch15.addConstraint([
    Sketcher.Constraint("Tangent", 0, 1, 1, 2),
    Sketcher.Constraint("Coincident", 1, 1, 2, 1),
    Sketcher.Constraint("Coincident", 2, 2, 0, 2),
    Sketcher.Constraint("Horizontal", 2),
    Sketcher.Constraint("Equal", 0, 1),
    Sketcher.Constraint("Horizontal", 1, 3, 0, 1),
    Sketcher.Constraint("Radius", 0, Q("1.75 mm")),
    Sketcher.Constraint("DistanceX", 0, 3, -1, 1, Q("25 mm")),
    Sketcher.Constraint("DistanceY", 0, 3, -1, 1, Q("10 mm")),
    Sketcher.Constraint("DistanceY", 1, 1, -1, 1, Q("8.9 mm")),
])
pocket10 = body5.newObject("PartDesign::Pocket", "Pocket009")
pocket10.Profile = sketch15
pocket10.Length = 5
pocket10.Reversed = True
doc.recompute()

fillet3 = body5.newObject("PartDesign::Fillet", "Fillet002")
fillet3.Base = (pocket10, edges_at(pocket10, [
    (-31, -7.5, -5),
    (-31, -12.5, -5),
    (-19, -7.5, -5),
    (-19, -12.5, -5),
]))
fillet3.Radius = 1

doc.recompute()
